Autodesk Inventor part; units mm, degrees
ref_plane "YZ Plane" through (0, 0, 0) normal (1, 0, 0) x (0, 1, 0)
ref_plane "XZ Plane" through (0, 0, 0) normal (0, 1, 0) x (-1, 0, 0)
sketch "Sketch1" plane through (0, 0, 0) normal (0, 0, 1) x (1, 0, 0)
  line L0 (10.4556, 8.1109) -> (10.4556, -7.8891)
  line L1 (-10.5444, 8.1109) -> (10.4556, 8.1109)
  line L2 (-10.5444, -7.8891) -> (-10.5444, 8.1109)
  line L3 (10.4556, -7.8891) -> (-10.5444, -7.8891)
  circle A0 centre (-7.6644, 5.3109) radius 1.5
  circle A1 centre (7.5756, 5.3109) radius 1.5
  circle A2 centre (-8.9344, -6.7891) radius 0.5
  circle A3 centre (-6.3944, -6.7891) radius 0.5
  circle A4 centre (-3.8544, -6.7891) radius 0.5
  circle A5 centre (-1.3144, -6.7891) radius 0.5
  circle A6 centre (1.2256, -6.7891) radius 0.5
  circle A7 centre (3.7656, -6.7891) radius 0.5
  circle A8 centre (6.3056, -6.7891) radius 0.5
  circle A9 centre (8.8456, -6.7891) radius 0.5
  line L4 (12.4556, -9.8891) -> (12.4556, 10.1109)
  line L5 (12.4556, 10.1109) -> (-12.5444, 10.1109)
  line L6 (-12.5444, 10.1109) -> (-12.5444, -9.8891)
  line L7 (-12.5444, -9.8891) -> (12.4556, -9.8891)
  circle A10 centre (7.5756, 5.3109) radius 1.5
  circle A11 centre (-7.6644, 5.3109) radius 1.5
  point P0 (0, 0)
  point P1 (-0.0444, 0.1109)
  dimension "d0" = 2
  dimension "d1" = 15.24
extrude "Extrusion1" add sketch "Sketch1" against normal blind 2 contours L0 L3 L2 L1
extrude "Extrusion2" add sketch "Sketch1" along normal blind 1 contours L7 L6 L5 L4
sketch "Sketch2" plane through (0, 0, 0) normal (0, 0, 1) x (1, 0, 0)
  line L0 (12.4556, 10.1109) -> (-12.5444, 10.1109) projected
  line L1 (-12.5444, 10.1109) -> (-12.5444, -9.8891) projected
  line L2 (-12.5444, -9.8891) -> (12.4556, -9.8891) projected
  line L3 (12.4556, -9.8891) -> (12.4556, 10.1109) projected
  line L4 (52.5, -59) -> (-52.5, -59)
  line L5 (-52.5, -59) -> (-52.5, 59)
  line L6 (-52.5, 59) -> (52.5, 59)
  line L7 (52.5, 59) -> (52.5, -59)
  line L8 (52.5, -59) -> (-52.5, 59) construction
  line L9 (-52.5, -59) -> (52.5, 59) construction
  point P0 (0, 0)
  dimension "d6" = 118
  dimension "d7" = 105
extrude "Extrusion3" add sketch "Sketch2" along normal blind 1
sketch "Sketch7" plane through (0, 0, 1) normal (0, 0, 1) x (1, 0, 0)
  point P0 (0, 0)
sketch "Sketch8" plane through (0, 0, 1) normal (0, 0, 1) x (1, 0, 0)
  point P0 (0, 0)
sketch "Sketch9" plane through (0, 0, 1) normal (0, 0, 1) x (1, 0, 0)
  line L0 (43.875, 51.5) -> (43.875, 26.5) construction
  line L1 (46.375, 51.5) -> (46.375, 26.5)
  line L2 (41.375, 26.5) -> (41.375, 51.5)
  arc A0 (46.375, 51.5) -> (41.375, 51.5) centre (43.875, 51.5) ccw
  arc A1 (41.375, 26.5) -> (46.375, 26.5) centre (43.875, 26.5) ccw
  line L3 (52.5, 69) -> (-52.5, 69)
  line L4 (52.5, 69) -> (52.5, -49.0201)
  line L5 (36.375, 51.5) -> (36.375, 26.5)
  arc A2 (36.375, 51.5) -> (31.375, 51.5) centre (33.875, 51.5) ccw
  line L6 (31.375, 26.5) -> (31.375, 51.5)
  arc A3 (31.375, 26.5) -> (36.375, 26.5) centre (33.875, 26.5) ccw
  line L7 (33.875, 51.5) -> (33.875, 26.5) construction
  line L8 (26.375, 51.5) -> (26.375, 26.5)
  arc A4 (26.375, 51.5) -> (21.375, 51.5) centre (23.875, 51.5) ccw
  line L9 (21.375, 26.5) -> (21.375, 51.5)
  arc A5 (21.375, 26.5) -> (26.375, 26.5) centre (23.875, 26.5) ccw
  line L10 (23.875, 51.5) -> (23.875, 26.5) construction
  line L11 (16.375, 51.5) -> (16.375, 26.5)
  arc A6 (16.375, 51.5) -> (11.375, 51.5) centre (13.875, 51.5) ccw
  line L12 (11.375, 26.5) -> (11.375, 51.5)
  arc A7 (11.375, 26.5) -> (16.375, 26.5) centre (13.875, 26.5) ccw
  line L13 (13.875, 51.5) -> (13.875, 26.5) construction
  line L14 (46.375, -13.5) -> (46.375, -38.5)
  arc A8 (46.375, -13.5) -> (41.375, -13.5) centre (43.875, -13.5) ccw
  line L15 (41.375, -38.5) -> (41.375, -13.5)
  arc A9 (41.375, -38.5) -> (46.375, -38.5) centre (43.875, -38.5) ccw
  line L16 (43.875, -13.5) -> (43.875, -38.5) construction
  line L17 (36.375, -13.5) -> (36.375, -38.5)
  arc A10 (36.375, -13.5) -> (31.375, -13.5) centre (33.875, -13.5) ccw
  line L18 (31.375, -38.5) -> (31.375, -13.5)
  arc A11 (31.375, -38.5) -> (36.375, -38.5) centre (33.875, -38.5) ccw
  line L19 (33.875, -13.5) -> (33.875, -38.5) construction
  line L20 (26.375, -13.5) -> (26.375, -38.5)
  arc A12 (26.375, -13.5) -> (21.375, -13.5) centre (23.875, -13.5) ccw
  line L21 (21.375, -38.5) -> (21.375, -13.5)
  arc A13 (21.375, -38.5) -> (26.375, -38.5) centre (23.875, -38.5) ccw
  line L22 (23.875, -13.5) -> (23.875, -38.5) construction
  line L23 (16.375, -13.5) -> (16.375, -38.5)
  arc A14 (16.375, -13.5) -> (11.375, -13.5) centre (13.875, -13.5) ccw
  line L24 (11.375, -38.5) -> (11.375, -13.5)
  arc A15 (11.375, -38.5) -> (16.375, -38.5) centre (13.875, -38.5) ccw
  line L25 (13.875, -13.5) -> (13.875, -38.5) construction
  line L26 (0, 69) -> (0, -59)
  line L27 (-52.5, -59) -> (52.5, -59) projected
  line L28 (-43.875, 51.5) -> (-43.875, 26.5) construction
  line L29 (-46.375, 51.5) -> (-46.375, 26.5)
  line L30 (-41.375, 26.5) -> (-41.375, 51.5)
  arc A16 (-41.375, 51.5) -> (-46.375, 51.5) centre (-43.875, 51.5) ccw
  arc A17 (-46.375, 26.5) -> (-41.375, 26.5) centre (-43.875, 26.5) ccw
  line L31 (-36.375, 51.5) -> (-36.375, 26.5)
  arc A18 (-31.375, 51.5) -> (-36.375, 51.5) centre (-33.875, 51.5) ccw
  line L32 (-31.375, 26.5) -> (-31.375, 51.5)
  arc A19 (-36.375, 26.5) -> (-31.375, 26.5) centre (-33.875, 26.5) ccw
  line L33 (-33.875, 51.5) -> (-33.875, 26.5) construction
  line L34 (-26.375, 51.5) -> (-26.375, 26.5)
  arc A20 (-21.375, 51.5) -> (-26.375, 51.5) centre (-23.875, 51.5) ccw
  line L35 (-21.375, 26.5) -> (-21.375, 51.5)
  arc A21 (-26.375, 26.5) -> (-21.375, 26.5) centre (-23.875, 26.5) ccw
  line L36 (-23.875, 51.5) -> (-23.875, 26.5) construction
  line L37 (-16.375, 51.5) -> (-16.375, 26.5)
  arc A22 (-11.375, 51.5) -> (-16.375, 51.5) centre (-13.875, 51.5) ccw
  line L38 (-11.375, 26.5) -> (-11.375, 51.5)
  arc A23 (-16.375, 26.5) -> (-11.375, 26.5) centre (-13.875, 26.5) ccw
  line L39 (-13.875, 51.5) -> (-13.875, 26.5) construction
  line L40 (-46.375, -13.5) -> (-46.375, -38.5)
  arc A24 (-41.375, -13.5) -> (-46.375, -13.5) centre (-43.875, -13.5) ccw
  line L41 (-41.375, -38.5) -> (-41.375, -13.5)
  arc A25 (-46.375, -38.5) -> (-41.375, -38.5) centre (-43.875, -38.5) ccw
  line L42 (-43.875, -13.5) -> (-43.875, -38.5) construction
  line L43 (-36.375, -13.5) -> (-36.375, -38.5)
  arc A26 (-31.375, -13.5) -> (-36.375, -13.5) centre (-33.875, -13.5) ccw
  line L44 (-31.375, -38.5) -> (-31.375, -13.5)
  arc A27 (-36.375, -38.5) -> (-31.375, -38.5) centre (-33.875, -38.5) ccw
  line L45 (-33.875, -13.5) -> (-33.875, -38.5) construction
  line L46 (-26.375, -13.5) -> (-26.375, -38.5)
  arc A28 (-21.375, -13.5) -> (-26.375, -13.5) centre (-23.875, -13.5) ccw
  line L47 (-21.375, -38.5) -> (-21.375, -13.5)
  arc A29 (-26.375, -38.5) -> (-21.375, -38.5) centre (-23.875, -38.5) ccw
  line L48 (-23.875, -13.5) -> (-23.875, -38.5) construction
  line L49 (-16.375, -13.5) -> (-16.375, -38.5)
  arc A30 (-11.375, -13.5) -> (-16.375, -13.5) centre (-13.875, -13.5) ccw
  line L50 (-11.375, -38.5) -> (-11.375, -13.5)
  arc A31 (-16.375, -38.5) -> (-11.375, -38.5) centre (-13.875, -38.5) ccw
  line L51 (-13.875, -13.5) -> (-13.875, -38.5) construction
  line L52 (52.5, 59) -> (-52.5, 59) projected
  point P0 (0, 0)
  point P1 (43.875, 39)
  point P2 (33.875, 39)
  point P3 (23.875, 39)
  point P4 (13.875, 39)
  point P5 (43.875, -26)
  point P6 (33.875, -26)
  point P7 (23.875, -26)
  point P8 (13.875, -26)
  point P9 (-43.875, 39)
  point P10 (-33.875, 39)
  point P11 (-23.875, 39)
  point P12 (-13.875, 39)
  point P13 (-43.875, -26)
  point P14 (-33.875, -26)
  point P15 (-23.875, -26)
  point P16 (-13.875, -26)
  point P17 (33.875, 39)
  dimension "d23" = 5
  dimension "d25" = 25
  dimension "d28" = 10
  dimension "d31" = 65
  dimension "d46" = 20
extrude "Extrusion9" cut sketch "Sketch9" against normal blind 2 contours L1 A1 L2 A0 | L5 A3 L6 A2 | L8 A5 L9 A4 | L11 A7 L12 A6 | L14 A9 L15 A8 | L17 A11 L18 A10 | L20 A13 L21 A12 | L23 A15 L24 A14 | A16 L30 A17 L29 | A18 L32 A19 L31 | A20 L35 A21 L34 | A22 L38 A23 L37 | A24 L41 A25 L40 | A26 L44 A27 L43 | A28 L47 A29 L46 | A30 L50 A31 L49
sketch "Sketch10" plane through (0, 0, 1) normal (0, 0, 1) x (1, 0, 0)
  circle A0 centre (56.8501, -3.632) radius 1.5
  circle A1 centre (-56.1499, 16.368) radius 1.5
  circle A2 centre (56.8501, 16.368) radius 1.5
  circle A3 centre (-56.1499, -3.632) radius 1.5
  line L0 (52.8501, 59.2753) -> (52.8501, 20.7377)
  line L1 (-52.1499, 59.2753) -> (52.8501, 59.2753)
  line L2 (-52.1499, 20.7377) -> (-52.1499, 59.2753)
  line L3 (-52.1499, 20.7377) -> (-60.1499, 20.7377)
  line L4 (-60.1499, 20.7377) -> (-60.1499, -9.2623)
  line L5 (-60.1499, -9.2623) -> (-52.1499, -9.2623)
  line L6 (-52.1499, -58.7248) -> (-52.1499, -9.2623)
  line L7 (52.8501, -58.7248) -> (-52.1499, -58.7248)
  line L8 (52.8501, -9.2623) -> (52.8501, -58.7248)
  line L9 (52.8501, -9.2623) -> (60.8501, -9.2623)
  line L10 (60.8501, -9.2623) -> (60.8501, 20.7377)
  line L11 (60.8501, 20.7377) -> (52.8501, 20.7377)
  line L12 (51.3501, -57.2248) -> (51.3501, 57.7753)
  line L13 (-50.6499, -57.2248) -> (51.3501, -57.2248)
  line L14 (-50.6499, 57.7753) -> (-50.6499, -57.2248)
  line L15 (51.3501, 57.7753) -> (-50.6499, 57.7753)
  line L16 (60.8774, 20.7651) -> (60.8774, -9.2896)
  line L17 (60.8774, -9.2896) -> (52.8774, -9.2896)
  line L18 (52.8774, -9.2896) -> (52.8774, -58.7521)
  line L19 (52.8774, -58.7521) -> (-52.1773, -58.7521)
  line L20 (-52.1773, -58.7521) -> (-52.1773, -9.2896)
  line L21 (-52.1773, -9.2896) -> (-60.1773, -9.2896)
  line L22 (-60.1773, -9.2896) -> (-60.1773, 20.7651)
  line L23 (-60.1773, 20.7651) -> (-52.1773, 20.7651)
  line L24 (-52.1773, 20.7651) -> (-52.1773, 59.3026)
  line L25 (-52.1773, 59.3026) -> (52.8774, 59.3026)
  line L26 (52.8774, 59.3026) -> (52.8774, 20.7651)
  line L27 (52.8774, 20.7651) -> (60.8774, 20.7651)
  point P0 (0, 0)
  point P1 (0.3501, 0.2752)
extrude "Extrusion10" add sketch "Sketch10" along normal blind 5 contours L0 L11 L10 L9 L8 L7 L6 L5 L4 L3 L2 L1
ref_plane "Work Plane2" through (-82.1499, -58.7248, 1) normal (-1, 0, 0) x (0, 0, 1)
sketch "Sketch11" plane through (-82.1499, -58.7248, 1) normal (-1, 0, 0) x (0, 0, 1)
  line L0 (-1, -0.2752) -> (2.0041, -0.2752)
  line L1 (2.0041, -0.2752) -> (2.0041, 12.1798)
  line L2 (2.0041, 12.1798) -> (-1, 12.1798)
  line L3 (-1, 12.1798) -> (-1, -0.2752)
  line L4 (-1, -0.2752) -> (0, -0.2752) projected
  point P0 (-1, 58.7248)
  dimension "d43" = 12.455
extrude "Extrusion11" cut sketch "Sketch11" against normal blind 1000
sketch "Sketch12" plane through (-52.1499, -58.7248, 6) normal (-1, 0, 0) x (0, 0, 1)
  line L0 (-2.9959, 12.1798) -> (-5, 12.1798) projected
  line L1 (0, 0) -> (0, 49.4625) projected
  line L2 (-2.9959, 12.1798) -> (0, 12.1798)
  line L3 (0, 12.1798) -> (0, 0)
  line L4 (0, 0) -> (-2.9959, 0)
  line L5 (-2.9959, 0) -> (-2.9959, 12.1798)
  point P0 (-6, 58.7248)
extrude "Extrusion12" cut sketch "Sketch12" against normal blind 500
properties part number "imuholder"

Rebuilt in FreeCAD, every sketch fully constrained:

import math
import FreeCAD as App
import Part
import Sketcher
from FreeCAD import Vector
Q = App.Units.Quantity

doc = App.newDocument("Part")
params = doc.addObject("Spreadsheet::Sheet", "Params")
for row, (alias, value) in enumerate([
    ("sketch1_diameter", "1 mm"),
    ("sketch1_diameter2", "3 mm"),
    ("sketch1_width", "21 mm"),
    ("sketch1_height", "16 mm"),
    ("pad1_length", "2 mm"),
    ("sketch2_width", "25 mm"),
    ("sketch2_height", "20 mm"),
    ("pad2_length", "1 mm"),
    ("sketch3_width", "105 mm"),
    ("sketch3_height", "118 mm"),
    ("sketch3_width2", "25 mm"),
    ("sketch3_height2", "20 mm"),
    ("pad3_length", "1 mm"),
    ("sketch4_radius", "2.5 mm"),
    ("sketch4_height", "25 mm"),
    ("pocket1_length", "2 mm"),
    ("sketch5_diameter", "3 mm"),
    ("sketch5_width", "105 mm"),
    ("sketch5_width2", "8 mm"),
    ("sketch5_width3", "102 mm"),
    ("sketch5_height", "30 mm"),
    ("pad4_length", "5 mm"),
    ("pocket2_length", "1000 mm"),
    ("pocket3_length", "500 mm"),
], start=1):
    params.set(f"A{row}", alias)
    params.set(f"B{row}", "=" + value)
    params.setAlias(f"B{row}", alias)

body = doc.addObject("PartDesign::Body", "Body")
body.AllowCompound = True

sketch1 = doc.addObject("Sketcher::SketchObject", "Sketch")
body.addObject(sketch1)
sketch1.AttachmentSupport = (doc.XY_Plane, [""])
sketch1.MapMode = "FlatFace"
sketch1.addGeometry(Part.LineSegment(Vector(10.5, -7.9, 0), Vector(10.5, 8.1, 0)), False)
sketch1.addGeometry(Part.LineSegment(Vector(10.5, 8.1, 0), Vector(-10.5, 8.1, 0)), False)
sketch1.addGeometry(Part.LineSegment(Vector(-10.5, 8.1, 0), Vector(-10.5, -7.9, 0)), False)
sketch1.addGeometry(Part.LineSegment(Vector(-10.5, -7.9, 0), Vector(10.5, -7.9, 0)), False)
sketch1.addGeometry(Part.Circle(Vector(-8.9, -6.8, 0), Vector(0, 0, 1), 0.5), False)
sketch1.addGeometry(Part.Circle(Vector(-6.4, -6.8, 0), Vector(0, 0, 1), 0.5), False)
sketch1.addGeometry(Part.Circle(Vector(-3.9, -6.8, 0), Vector(0, 0, 1), 0.5), False)
sketch1.addGeometry(Part.Circle(Vector(-1.3, -6.8, 0), Vector(0, 0, 1), 0.5), False)
sketch1.addGeometry(Part.Circle(Vector(1.2, -6.8, 0), Vector(0, 0, 1), 0.5), False)
sketch1.addGeometry(Part.Circle(Vector(3.8, -6.8, 0), Vector(0, 0, 1), 0.5), False)
sketch1.addGeometry(Part.Circle(Vector(6.3, -6.8, 0), Vector(0, 0, 1), 0.5), False)
sketch1.addGeometry(Part.Circle(Vector(8.8, -6.8, 0), Vector(0, 0, 1), 0.5), False)
sketch1.addGeometry(Part.Circle(Vector(-7.7, 5.3, 0), Vector(0, 0, 1), 1.5), False)
sketch1.addGeometry(Part.Circle(Vector(7.6, 5.3, 0), Vector(0, 0, 1), 1.5), False)
sketch1.addConstraint(Sketcher.Constraint("Coincident", 0, 2, 1, 1))
sketch1.addConstraint(Sketcher.Constraint("Coincident", 1, 2, 2, 1))
sketch1.addConstraint(Sketcher.Constraint("Coincident", 2, 2, 3, 1))
sketch1.addConstraint(Sketcher.Constraint("Coincident", 3, 2, 0, 1))
sketch1.addConstraint(Sketcher.Constraint("Vertical", 0))
sketch1.addConstraint(Sketcher.Constraint("Horizontal", 1))
sketch1.addConstraint(Sketcher.Constraint("Vertical", 2))
sketch1.addConstraint(Sketcher.Constraint("Horizontal", 3))
sketch1.addConstraint(Sketcher.Constraint("Equal", 4, 5))
sketch1.addConstraint(Sketcher.Constraint("Equal", 5, 6))
sketch1.addConstraint(Sketcher.Constraint("Equal", 6, 7))
sketch1.addConstraint(Sketcher.Constraint("Equal", 7, 8))
sketch1.addConstraint(Sketcher.Constraint("Equal", 8, 9))
sketch1.addConstraint(Sketcher.Constraint("Equal", 9, 10))
sketch1.addConstraint(Sketcher.Constraint("Equal", 10, 11))
sketch1.addConstraint(Sketcher.Constraint("Equal", 12, 13))
sketch1.addConstraint(Sketcher.Constraint("Horizontal", 4, 3, 5, 3))
sketch1.addConstraint(Sketcher.Constraint("Horizontal", 5, 3, 6, 3))
sketch1.addConstraint(Sketcher.Constraint("Horizontal", 6, 3, 7, 3))
sketch1.addConstraint(Sketcher.Constraint("Horizontal", 7, 3, 8, 3))
sketch1.addConstraint(Sketcher.Constraint("Horizontal", 8, 3, 9, 3))
sketch1.addConstraint(Sketcher.Constraint("Horizontal", 9, 3, 10, 3))
sketch1.addConstraint(Sketcher.Constraint("Horizontal", 10, 3, 11, 3))
sketch1.addConstraint(Sketcher.Constraint("Horizontal", 12, 3, 13, 3))
sketch1.addConstraint(Sketcher.Constraint("Diameter", 4, Q("1 mm")))
sketch1.addConstraint(Sketcher.Constraint("Diameter", 12, Q("3 mm")))
sketch1.addConstraint(Sketcher.Constraint("DistanceX", 1, 2, 1, 1, Q("21 mm")))
sketch1.addConstraint(Sketcher.Constraint("DistanceY", 0, 1, 0, 2, Q("16 mm")))
sketch1.addConstraint(Sketcher.Constraint("DistanceX", 4, 3, 9, 3, Q("12.7 mm")))
sketch1.addConstraint(Sketcher.Constraint("DistanceX", 5, 3, 10, 3, Q("12.7 mm")))
sketch1.addConstraint(Sketcher.Constraint("DistanceX", 6, 3, 11, 3, Q("12.7 mm")))
sketch1.addConstraint(Sketcher.Constraint("DistanceY", 4, 3, 12, 3, Q("12.1 mm")))
sketch1.addConstraint(Sketcher.Constraint("DistanceY", 13, 3, 0, 2, Q("2.8 mm")))
sketch1.addConstraint(Sketcher.Constraint("DistanceX", 4, 3, 5, 3, Q("2.54 mm")))
sketch1.addConstraint(Sketcher.Constraint("DistanceX", 5, 3, 6, 3, Q("2.54 mm")))
sketch1.addConstraint(Sketcher.Constraint("DistanceX", 6, 3, 7, 3, Q("2.54 mm")))
sketch1.addConstraint(Sketcher.Constraint("DistanceX", 7, 3, 8, 3, Q("2.54 mm")))
sketch1.addConstraint(Sketcher.Constraint("DistanceX", 4, 3, 12, 3, Q("1.27 mm")))
sketch1.addConstraint(Sketcher.Constraint("DistanceX", 10, 3, 13, 3, Q("1.27 mm")))
sketch1.addConstraint(Sketcher.Constraint("DistanceX", 13, 3, 0, 2, Q("2.88 mm")))
sketch1.addConstraint(Sketcher.Constraint("DistanceY", 4, 3, -1, 1, Q("6.789 mm")))
sketch1.addConstraint(Sketcher.Constraint("DistanceX", 4, 3, -1, 1, Q("8.9344 mm")))
sketch1.setExpression("Constraints[24]", "Params.sketch1_diameter")
sketch1.setExpression("Constraints[25]", "Params.sketch1_diameter2")
sketch1.setExpression("Constraints[26]", "Params.sketch1_width")
sketch1.setExpression("Constraints[27]", "Params.sketch1_height")
pad1 = doc.addObject("PartDesign::Pad", "Pad")
body.addObject(pad1)
pad1.Profile = sketch1
pad1.setExpression("Length", "Params.pad1_length")
pad1.Reversed = True

sketch2 = doc.addObject("Sketcher::SketchObject", "Sketch001")
body.addObject(sketch2)
sketch2.AttachmentSupport = (doc.XY_Plane, [""])
sketch2.MapMode = "FlatFace"
sketch2.addGeometry(Part.LineSegment(Vector(-13, -10, 0), Vector(12, -10, 0)), False)
sketch2.addGeometry(Part.LineSegment(Vector(12, -10, 0), Vector(12, 10, 0)), False)
sketch2.addGeometry(Part.LineSegment(Vector(12, 10, 0), Vector(-13, 10, 0)), False)
sketch2.addGeometry(Part.LineSegment(Vector(-13, 10, 0), Vector(-13, -10, 0)), False)
sketch2.addGeometry(Part.LineSegment(Vector(-11, 8, 0), Vector(10, 8, 0)), False)
sketch2.addGeometry(Part.LineSegment(Vector(10, 8, 0), Vector(10, -8, 0)), False)
sketch2.addGeometry(Part.LineSegment(Vector(10, -8, 0), Vector(-11, -8, 0)), False)
sketch2.addGeometry(Part.LineSegment(Vector(-11, -8, 0), Vector(-11, 8, 0)), False)
sketch2.addConstraint(Sketcher.Constraint("Coincident", 0, 2, 1, 1))
sketch2.addConstraint(Sketcher.Constraint("Coincident", 1, 2, 2, 1))
sketch2.addConstraint(Sketcher.Constraint("Coincident", 2, 2, 3, 1))
sketch2.addConstraint(Sketcher.Constraint("Coincident", 3, 2, 0, 1))
sketch2.addConstraint(Sketcher.Constraint("Coincident", 4, 2, 5, 1))
sketch2.addConstraint(Sketcher.Constraint("Coincident", 5, 2, 6, 1))
sketch2.addConstraint(Sketcher.Constraint("Coincident", 6, 2, 7, 1))
sketch2.addConstraint(Sketcher.Constraint("Coincident", 7, 2, 4, 1))
sketch2.addConstraint(Sketcher.Constraint("Horizontal", 0))
sketch2.addConstraint(Sketcher.Constraint("Vertical", 1))
sketch2.addConstraint(Sketcher.Constraint("Horizontal", 2))
sketch2.addConstraint(Sketcher.Constraint("Vertical", 3))
sketch2.addConstraint(Sketcher.Constraint("Horizontal", 4))
sketch2.addConstraint(Sketcher.Constraint("Vertical", 5))
sketch2.addConstraint(Sketcher.Constraint("Horizontal", 6))
sketch2.addConstraint(Sketcher.Constraint("Vertical", 7))
sketch2.addConstraint(Sketcher.Constraint("DistanceX", 4, 2, 1, 2, Q("2 mm")))
sketch2.addConstraint(Sketcher.Constraint("DistanceY", 4, 2, 1, 2, Q("2 mm")))
sketch2.addConstraint(Sketcher.Constraint("DistanceY", 0, 2, 5, 2, Q("2 mm")))
sketch2.addConstraint(Sketcher.Constraint("DistanceX", 3, 2, 6, 2, Q("2 mm")))
sketch2.addConstraint(Sketcher.Constraint("DistanceX", 0, 1, 0, 2, Q("25 mm")))
sketch2.addConstraint(Sketcher.Constraint("DistanceY", 1, 1, 1, 2, Q("20 mm")))
sketch2.addConstraint(Sketcher.Constraint("DistanceY", 0, 2, -1, 1, Q("9.889 mm")))
sketch2.addConstraint(Sketcher.Constraint("DistanceX", -1, 1, 0, 2, Q("12.4556 mm")))
sketch2.setExpression("Constraints[20]", "Params.sketch2_width")
sketch2.setExpression("Constraints[21]", "Params.sketch2_height")
pad2 = doc.addObject("PartDesign::Pad", "Pad001")
body.addObject(pad2)
pad2.Profile = sketch2
pad2.setExpression("Length", "Params.pad2_length")

sketch3 = doc.addObject("Sketcher::SketchObject", "Sketch002")
body.addObject(sketch3)
sketch3.AttachmentSupport = (doc.XY_Plane, [""])
sketch3.MapMode = "FlatFace"
sketch3.addGeometry(Part.LineSegment(Vector(-52, -59, 0), Vector(52, -59, 0)), False)
sketch3.addGeometry(Part.LineSegment(Vector(52, -59, 0), Vector(52, 59, 0)), False)
sketch3.addGeometry(Part.LineSegment(Vector(52, 59, 0), Vector(-52, 59, 0)), False)
sketch3.addGeometry(Part.LineSegment(Vector(-52, 59, 0), Vector(-52, -59, 0)), False)
sketch3.addGeometry(Part.LineSegment(Vector(-13, 10, 0), Vector(12, 10, 0)), False)
sketch3.addGeometry(Part.LineSegment(Vector(12, 10, 0), Vector(12, -10, 0)), False)
sketch3.addGeometry(Part.LineSegment(Vector(12, -10, 0), Vector(-13, -10, 0)), False)
sketch3.addGeometry(Part.LineSegment(Vector(-13, -10, 0), Vector(-13, 10, 0)), False)
sketch3.addConstraint(Sketcher.Constraint("Coincident", 0, 2, 1, 1))
sketch3.addConstraint(Sketcher.Constraint("Coincident", 1, 2, 2, 1))
sketch3.addConstraint(Sketcher.Constraint("Coincident", 2, 2, 3, 1))
sketch3.addConstraint(Sketcher.Constraint("Coincident", 3, 2, 0, 1))
sketch3.addConstraint(Sketcher.Constraint("Coincident", 4, 2, 5, 1))
sketch3.addConstraint(Sketcher.Constraint("Coincident", 5, 2, 6, 1))
sketch3.addConstraint(Sketcher.Constraint("Coincident", 6, 2, 7, 1))
sketch3.addConstraint(Sketcher.Constraint("Coincident", 7, 2, 4, 1))
sketch3.addConstraint(Sketcher.Constraint("Horizontal", 0))
sketch3.addConstraint(Sketcher.Constraint("Vertical", 1))
sketch3.addConstraint(Sketcher.Constraint("Horizontal", 2))
sketch3.addConstraint(Sketcher.Constraint("Vertical", 3))
sketch3.addConstraint(Sketcher.Constraint("Horizontal", 4))
sketch3.addConstraint(Sketcher.Constraint("Vertical", 5))
sketch3.addConstraint(Sketcher.Constraint("Horizontal", 6))
sketch3.addConstraint(Sketcher.Constraint("Vertical", 7))
sketch3.addConstraint(Sketcher.Constraint("Symmetric", 0, 2, 2, 2, -1, 1))
sketch3.addConstraint(Sketcher.Constraint("DistanceX", 0, 1, 0, 2, Q("105 mm")))
sketch3.addConstraint(Sketcher.Constraint("DistanceY", 1, 1, 1, 2, Q("118 mm")))
sketch3.addConstraint(Sketcher.Constraint("DistanceX", 4, 1, 4, 2, Q("25 mm")))
sketch3.addConstraint(Sketcher.Constraint("DistanceY", 5, 2, 5, 1, Q("20 mm")))
sketch3.addConstraint(Sketcher.Constraint("DistanceY", -1, 1, 4, 2, Q("10.111 mm")))
sketch3.addConstraint(Sketcher.Constraint("DistanceX", -1, 1, 4, 2, Q("12.4556 mm")))
sketch3.setExpression("Constraints[17]", "Params.sketch3_width")
sketch3.setExpression("Constraints[18]", "Params.sketch3_height")
sketch3.setExpression("Constraints[19]", "Params.sketch3_width2")
sketch3.setExpression("Constraints[20]", "Params.sketch3_height2")
pad3 = doc.addObject("PartDesign::Pad", "Pad002")
body.addObject(pad3)
pad3.Profile = sketch3
pad3.setExpression("Length", "Params.pad3_length")

sketch4 = doc.addObject("Sketcher::SketchObject", "Sketch003")
body.addObject(sketch4)
sketch4.AttachmentSupport = (doc.XY_Plane, [""])
sketch4.MapMode = "FlatFace"
sketch4.AttachmentOffset = App.Placement(Vector(0, 0, 1), App.Rotation())
sketch4.addGeometry(Part.LineSegment(Vector(46.4, 26.5, 0), Vector(46.4, 51.5, 0)), False)
sketch4.addGeometry(Part.ArcOfCircle(Part.Circle(Vector(43.9, 51.5, 0), Vector(0, 0, 1), 2.5), math.radians(0), math.radians(180)), False)
sketch4.addGeometry(Part.LineSegment(Vector(41.4, 51.5, 0), Vector(41.4, 26.5, 0)), False)
sketch4.addGeometry(Part.ArcOfCircle(Part.Circle(Vector(43.9, 26.5, 0), Vector(0, 0, 1), 2.5), math.radians(180), math.radians(360)), False)
sketch4.addGeometry(Part.LineSegment(Vector(36.4, 26.5, 0), Vector(36.4, 51.5, 0)), False)
sketch4.addGeometry(Part.ArcOfCircle(Part.Circle(Vector(33.9, 51.5, 0), Vector(0, 0, 1), 2.5), math.radians(0), math.radians(180)), False)
sketch4.addGeometry(Part.LineSegment(Vector(31.4, 51.5, 0), Vector(31.4, 26.5, 0)), False)
sketch4.addGeometry(Part.ArcOfCircle(Part.Circle(Vector(33.9, 26.5, 0), Vector(0, 0, 1), 2.5), math.radians(180), math.radians(360)), False)
sketch4.addGeometry(Part.LineSegment(Vector(26.4, 26.5, 0), Vector(26.4, 51.5, 0)), False)
sketch4.addGeometry(Part.ArcOfCircle(Part.Circle(Vector(23.9, 51.5, 0), Vector(0, 0, 1), 2.5), math.radians(0), math.radians(180)), False)
sketch4.addGeometry(Part.LineSegment(Vector(21.4, 51.5, 0), Vector(21.4, 26.5, 0)), False)
sketch4.addGeometry(Part.ArcOfCircle(Part.Circle(Vector(23.9, 26.5, 0), Vector(0, 0, 1), 2.5), math.radians(180), math.radians(360)), False)
sketch4.addGeometry(Part.LineSegment(Vector(16.4, 26.5, 0), Vector(16.4, 51.5, 0)), False)
sketch4.addGeometry(Part.ArcOfCircle(Part.Circle(Vector(13.9, 51.5, 0), Vector(0, 0, 1), 2.5), math.radians(0), math.radians(180)), False)
sketch4.addGeometry(Part.LineSegment(Vector(11.4, 51.5, 0), Vector(11.4, 26.5, 0)), False)
sketch4.addGeometry(Part.ArcOfCircle(Part.Circle(Vector(13.9, 26.5, 0), Vector(0, 0, 1), 2.5), math.radians(180), math.radians(360)), False)
sketch4.addGeometry(Part.LineSegment(Vector(46.4, -38.5, 0), Vector(46.4, -13.5, 0)), False)
sketch4.addGeometry(Part.ArcOfCircle(Part.Circle(Vector(43.9, -13.5, 0), Vector(0, 0, 1), 2.5), math.radians(0), math.radians(180)), False)
sketch4.addGeometry(Part.LineSegment(Vector(41.4, -13.5, 0), Vector(41.4, -38.5, 0)), False)
sketch4.addGeometry(Part.ArcOfCircle(Part.Circle(Vector(43.9, -38.5, 0), Vector(0, 0, 1), 2.5), math.radians(180), math.radians(360)), False)
sketch4.addGeometry(Part.LineSegment(Vector(36.4, -38.5, 0), Vector(36.4, -13.5, 0)), False)
sketch4.addGeometry(Part.ArcOfCircle(Part.Circle(Vector(33.9, -13.5, 0), Vector(0, 0, 1), 2.5), math.radians(0), math.radians(180)), False)
sketch4.addGeometry(Part.LineSegment(Vector(31.4, -13.5, 0), Vector(31.4, -38.5, 0)), False)
sketch4.addGeometry(Part.ArcOfCircle(Part.Circle(Vector(33.9, -38.5, 0), Vector(0, 0, 1), 2.5), math.radians(180), math.radians(360)), False)
sketch4.addGeometry(Part.LineSegment(Vector(26.4, -38.5, 0), Vector(26.4, -13.5, 0)), False)
sketch4.addGeometry(Part.ArcOfCircle(Part.Circle(Vector(23.9, -13.5, 0), Vector(0, 0, 1), 2.5), math.radians(0), math.radians(180)), False)
sketch4.addGeometry(Part.LineSegment(Vector(21.4, -13.5, 0), Vector(21.4, -38.5, 0)), False)
sketch4.addGeometry(Part.ArcOfCircle(Part.Circle(Vector(23.9, -38.5, 0), Vector(0, 0, 1), 2.5), math.radians(180), math.radians(360)), False)
sketch4.addGeometry(Part.LineSegment(Vector(16.4, -38.5, 0), Vector(16.4, -13.5, 0)), False)
sketch4.addGeometry(Part.ArcOfCircle(Part.Circle(Vector(13.9, -13.5, 0), Vector(0, 0, 1), 2.5), math.radians(0), math.radians(180)), False)
sketch4.addGeometry(Part.LineSegment(Vector(11.4, -13.5, 0), Vector(11.4, -38.5, 0)), False)
sketch4.addGeometry(Part.ArcOfCircle(Part.Circle(Vector(13.9, -38.5, 0), Vector(0, 0, 1), 2.5), math.radians(180), math.radians(360)), False)
sketch4.addGeometry(Part.ArcOfCircle(Part.Circle(Vector(-43.9, 51.5, 0), Vector(0, 0, 1), 2.5), math.radians(0), math.radians(180)), False)
sketch4.addGeometry(Part.LineSegment(Vector(-46.4, 51.5, 0), Vector(-46.4, 26.5, 0)), False)
sketch4.addGeometry(Part.ArcOfCircle(Part.Circle(Vector(-43.9, 26.5, 0), Vector(0, 0, 1), 2.5), math.radians(180), math.radians(360)), False)
sketch4.addGeometry(Part.LineSegment(Vector(-41.4, 26.5, 0), Vector(-41.4, 51.5, 0)), False)
sketch4.addGeometry(Part.ArcOfCircle(Part.Circle(Vector(-33.9, 51.5, 0), Vector(0, 0, 1), 2.5), math.radians(0), math.radians(180)), False)
sketch4.addGeometry(Part.LineSegment(Vector(-36.4, 51.5, 0), Vector(-36.4, 26.5, 0)), False)
sketch4.addGeometry(Part.ArcOfCircle(Part.Circle(Vector(-33.9, 26.5, 0), Vector(0, 0, 1), 2.5), math.radians(180), math.radians(360)), False)
sketch4.addGeometry(Part.LineSegment(Vector(-31.4, 26.5, 0), Vector(-31.4, 51.5, 0)), False)
sketch4.addGeometry(Part.ArcOfCircle(Part.Circle(Vector(-23.9, 51.5, 0), Vector(0, 0, 1), 2.5), math.radians(0), math.radians(180)), False)
sketch4.addGeometry(Part.LineSegment(Vector(-26.4, 51.5, 0), Vector(-26.4, 26.5, 0)), False)
sketch4.addGeometry(Part.ArcOfCircle(Part.Circle(Vector(-23.9, 26.5, 0), Vector(0, 0, 1), 2.5), math.radians(180), math.radians(360)), False)
sketch4.addGeometry(Part.LineSegment(Vector(-21.4, 26.5, 0), Vector(-21.4, 51.5, 0)), False)
sketch4.addGeometry(Part.ArcOfCircle(Part.Circle(Vector(-13.9, 51.5, 0), Vector(0, 0, 1), 2.5), math.radians(0), math.radians(180)), False)
sketch4.addGeometry(Part.LineSegment(Vector(-16.4, 51.5, 0), Vector(-16.4, 26.5, 0)), False)
sketch4.addGeometry(Part.ArcOfCircle(Part.Circle(Vector(-13.9, 26.5, 0), Vector(0, 0, 1), 2.5), math.radians(180), math.radians(360)), False)
sketch4.addGeometry(Part.LineSegment(Vector(-11.4, 26.5, 0), Vector(-11.4, 51.5, 0)), False)
sketch4.addGeometry(Part.ArcOfCircle(Part.Circle(Vector(-43.9, -13.5, 0), Vector(0, 0, 1), 2.5), math.radians(0), math.radians(180)), False)
sketch4.addGeometry(Part.LineSegment(Vector(-46.4, -13.5, 0), Vector(-46.4, -38.5, 0)), False)
sketch4.addGeometry(Part.ArcOfCircle(Part.Circle(Vector(-43.9, -38.5, 0), Vector(0, 0, 1), 2.5), math.radians(180), math.radians(360)), False)
sketch4.addGeometry(Part.LineSegment(Vector(-41.4, -38.5, 0), Vector(-41.4, -13.5, 0)), False)
sketch4.addGeometry(Part.ArcOfCircle(Part.Circle(Vector(-33.9, -13.5, 0), Vector(0, 0, 1), 2.5), math.radians(0), math.radians(180)), False)
sketch4.addGeometry(Part.LineSegment(Vector(-36.4, -13.5, 0), Vector(-36.4, -38.5, 0)), False)
sketch4.addGeometry(Part.ArcOfCircle(Part.Circle(Vector(-33.9, -38.5, 0), Vector(0, 0, 1), 2.5), math.radians(180), math.radians(360)), False)
sketch4.addGeometry(Part.LineSegment(Vector(-31.4, -38.5, 0), Vector(-31.4, -13.5, 0)), False)
sketch4.addGeometry(Part.ArcOfCircle(Part.Circle(Vector(-23.9, -13.5, 0), Vector(0, 0, 1), 2.5), math.radians(0), math.radians(180)), False)
sketch4.addGeometry(Part.LineSegment(Vector(-26.4, -13.5, 0), Vector(-26.4, -38.5, 0)), False)
sketch4.addGeometry(Part.ArcOfCircle(Part.Circle(Vector(-23.9, -38.5, 0), Vector(0, 0, 1), 2.5), math.radians(180), math.radians(360)), False)
sketch4.addGeometry(Part.LineSegment(Vector(-21.4, -38.5, 0), Vector(-21.4, -13.5, 0)), False)
sketch4.addGeometry(Part.ArcOfCircle(Part.Circle(Vector(-13.9, -13.5, 0), Vector(0, 0, 1), 2.5), math.radians(0), math.radians(180)), False)
sketch4.addGeometry(Part.LineSegment(Vector(-16.4, -13.5, 0), Vector(-16.4, -38.5, 0)), False)
sketch4.addGeometry(Part.ArcOfCircle(Part.Circle(Vector(-13.9, -38.5, 0), Vector(0, 0, 1), 2.5), math.radians(180), math.radians(360)), False)
sketch4.addGeometry(Part.LineSegment(Vector(-11.4, -38.5, 0), Vector(-11.4, -13.5, 0)), False)
sketch4.addConstraint(Sketcher.Constraint("Tangent", 0, 2, 1, 1))
sketch4.addConstraint(Sketcher.Constraint("Tangent", 1, 2, 2, 1))
sketch4.addConstraint(Sketcher.Constraint("Tangent", 2, 2, 3, 1))
sketch4.addConstraint(Sketcher.Constraint("Tangent", 3, 2, 0, 1))
sketch4.addConstraint(Sketcher.Constraint("Tangent", 4, 2, 5, 1))
sketch4.addConstraint(Sketcher.Constraint("Tangent", 5, 2, 6, 1))
sketch4.addConstraint(Sketcher.Constraint("Tangent", 6, 2, 7, 1))
sketch4.addConstraint(Sketcher.Constraint("Tangent", 7, 2, 4, 1))
sketch4.addConstraint(Sketcher.Constraint("Tangent", 8, 2, 9, 1))
sketch4.addConstraint(Sketcher.Constraint("Tangent", 9, 2, 10, 1))
sketch4.addConstraint(Sketcher.Constraint("Tangent", 10, 2, 11, 1))
sketch4.addConstraint(Sketcher.Constraint("Tangent", 11, 2, 8, 1))
sketch4.addConstraint(Sketcher.Constraint("Tangent", 12, 2, 13, 1))
sketch4.addConstraint(Sketcher.Constraint("Tangent", 13, 2, 14, 1))
sketch4.addConstraint(Sketcher.Constraint("Tangent", 14, 2, 15, 1))
sketch4.addConstraint(Sketcher.Constraint("Tangent", 15, 2, 12, 1))
sketch4.addConstraint(Sketcher.Constraint("Tangent", 16, 2, 17, 1))
sketch4.addConstraint(Sketcher.Constraint("Tangent", 17, 2, 18, 1))
sketch4.addConstraint(Sketcher.Constraint("Tangent", 18, 2, 19, 1))
sketch4.addConstraint(Sketcher.Constraint("Tangent", 19, 2, 16, 1))
sketch4.addConstraint(Sketcher.Constraint("Tangent", 20, 2, 21, 1))
sketch4.addConstraint(Sketcher.Constraint("Tangent", 21, 2, 22, 1))
sketch4.addConstraint(Sketcher.Constraint("Tangent", 22, 2, 23, 1))
sketch4.addConstraint(Sketcher.Constraint("Tangent", 23, 2, 20, 1))
sketch4.addConstraint(Sketcher.Constraint("Tangent", 24, 2, 25, 1))
sketch4.addConstraint(Sketcher.Constraint("Tangent", 25, 2, 26, 1))
sketch4.addConstraint(Sketcher.Constraint("Tangent", 26, 2, 27, 1))
sketch4.addConstraint(Sketcher.Constraint("Tangent", 27, 2, 24, 1))
sketch4.addConstraint(Sketcher.Constraint("Tangent", 28, 2, 29, 1))
sketch4.addConstraint(Sketcher.Constraint("Tangent", 29, 2, 30, 1))
sketch4.addConstraint(Sketcher.Constraint("Tangent", 30, 2, 31, 1))
sketch4.addConstraint(Sketcher.Constraint("Tangent", 31, 2, 28, 1))
sketch4.addConstraint(Sketcher.Constraint("Tangent", 32, 2, 33, 1))
sketch4.addConstraint(Sketcher.Constraint("Tangent", 33, 2, 34, 1))
sketch4.addConstraint(Sketcher.Constraint("Tangent", 34, 2, 35, 1))
sketch4.addConstraint(Sketcher.Constraint("Tangent", 35, 2, 32, 1))
sketch4.addConstraint(Sketcher.Constraint("Tangent", 36, 2, 37, 1))
sketch4.addConstraint(Sketcher.Constraint("Tangent", 37, 2, 38, 1))
sketch4.addConstraint(Sketcher.Constraint("Tangent", 38, 2, 39, 1))
sketch4.addConstraint(Sketcher.Constraint("Tangent", 39, 2, 36, 1))
sketch4.addConstraint(Sketcher.Constraint("Tangent", 40, 2, 41, 1))
sketch4.addConstraint(Sketcher.Constraint("Tangent", 41, 2, 42, 1))
sketch4.addConstraint(Sketcher.Constraint("Tangent", 42, 2, 43, 1))
sketch4.addConstraint(Sketcher.Constraint("Tangent", 43, 2, 40, 1))
sketch4.addConstraint(Sketcher.Constraint("Tangent", 44, 2, 45, 1))
sketch4.addConstraint(Sketcher.Constraint("Tangent", 45, 2, 46, 1))
sketch4.addConstraint(Sketcher.Constraint("Tangent", 46, 2, 47, 1))
sketch4.addConstraint(Sketcher.Constraint("Tangent", 47, 2, 44, 1))
sketch4.addConstraint(Sketcher.Constraint("Tangent", 48, 2, 49, 1))
sketch4.addConstraint(Sketcher.Constraint("Tangent", 49, 2, 50, 1))
sketch4.addConstraint(Sketcher.Constraint("Tangent", 50, 2, 51, 1))
sketch4.addConstraint(Sketcher.Constraint("Tangent", 51, 2, 48, 1))
sketch4.addConstraint(Sketcher.Constraint("Tangent", 52, 2, 53, 1))
sketch4.addConstraint(Sketcher.Constraint("Tangent", 53, 2, 54, 1))
sketch4.addConstraint(Sketcher.Constraint("Tangent", 54, 2, 55, 1))
sketch4.addConstraint(Sketcher.Constraint("Tangent", 55, 2, 52, 1))
sketch4.addConstraint(Sketcher.Constraint("Tangent", 56, 2, 57, 1))
sketch4.addConstraint(Sketcher.Constraint("Tangent", 57, 2, 58, 1))
sketch4.addConstraint(Sketcher.Constraint("Tangent", 58, 2, 59, 1))
sketch4.addConstraint(Sketcher.Constraint("Tangent", 59, 2, 56, 1))
sketch4.addConstraint(Sketcher.Constraint("Tangent", 60, 2, 61, 1))
sketch4.addConstraint(Sketcher.Constraint("Tangent", 61, 2, 62, 1))
sketch4.addConstraint(Sketcher.Constraint("Tangent", 62, 2, 63, 1))
sketch4.addConstraint(Sketcher.Constraint("Tangent", 63, 2, 60, 1))
sketch4.addConstraint(Sketcher.Constraint("Vertical", 0))
sketch4.addConstraint(Sketcher.Constraint("Vertical", 2))
sketch4.addConstraint(Sketcher.Constraint("Vertical", 4))
sketch4.addConstraint(Sketcher.Constraint("Vertical", 6))
sketch4.addConstraint(Sketcher.Constraint("Vertical", 8))
sketch4.addConstraint(Sketcher.Constraint("Vertical", 10))
sketch4.addConstraint(Sketcher.Constraint("Vertical", 12))
sketch4.addConstraint(Sketcher.Constraint("Vertical", 14))
sketch4.addConstraint(Sketcher.Constraint("Vertical", 16))
sketch4.addConstraint(Sketcher.Constraint("Vertical", 18))
sketch4.addConstraint(Sketcher.Constraint("Vertical", 20))
sketch4.addConstraint(Sketcher.Constraint("Vertical", 22))
sketch4.addConstraint(Sketcher.Constraint("Vertical", 24))
sketch4.addConstraint(Sketcher.Constraint("Vertical", 26))
sketch4.addConstraint(Sketcher.Constraint("Vertical", 28))
sketch4.addConstraint(Sketcher.Constraint("Vertical", 30))
sketch4.addConstraint(Sketcher.Constraint("Vertical", 33))
sketch4.addConstraint(Sketcher.Constraint("Vertical", 35))
sketch4.addConstraint(Sketcher.Constraint("Vertical", 37))
sketch4.addConstraint(Sketcher.Constraint("Vertical", 39))
sketch4.addConstraint(Sketcher.Constraint("Vertical", 41))
sketch4.addConstraint(Sketcher.Constraint("Vertical", 43))
sketch4.addConstraint(Sketcher.Constraint("Vertical", 45))
sketch4.addConstraint(Sketcher.Constraint("Vertical", 47))
sketch4.addConstraint(Sketcher.Constraint("Vertical", 49))
sketch4.addConstraint(Sketcher.Constraint("Vertical", 51))
sketch4.addConstraint(Sketcher.Constraint("Vertical", 53))
sketch4.addConstraint(Sketcher.Constraint("Vertical", 55))
sketch4.addConstraint(Sketcher.Constraint("Vertical", 57))
sketch4.addConstraint(Sketcher.Constraint("Vertical", 59))
sketch4.addConstraint(Sketcher.Constraint("Vertical", 61))
sketch4.addConstraint(Sketcher.Constraint("Vertical", 63))
sketch4.addConstraint(Sketcher.Constraint("Equal", 3, 5))
sketch4.addConstraint(Sketcher.Constraint("Equal", 7, 9))
sketch4.addConstraint(Sketcher.Constraint("Equal", 11, 13))
sketch4.addConstraint(Sketcher.Constraint("Equal", 15, 17))
sketch4.addConstraint(Sketcher.Constraint("Equal", 19, 21))
sketch4.addConstraint(Sketcher.Constraint("Equal", 23, 25))
sketch4.addConstraint(Sketcher.Constraint("Equal", 27, 29))
sketch4.addConstraint(Sketcher.Constraint("Equal", 31, 32))
sketch4.addConstraint(Sketcher.Constraint("Equal", 34, 36))
sketch4.addConstraint(Sketcher.Constraint("Equal", 38, 40))
sketch4.addConstraint(Sketcher.Constraint("Equal", 42, 44))
sketch4.addConstraint(Sketcher.Constraint("Equal", 46, 48))
sketch4.addConstraint(Sketcher.Constraint("Equal", 50, 52))
sketch4.addConstraint(Sketcher.Constraint("Equal", 54, 56))
sketch4.addConstraint(Sketcher.Constraint("Equal", 58, 60))
sketch4.addConstraint(Sketcher.Constraint("Symmetric", 1, 3, 32, 3, -2))
sketch4.addConstraint(Sketcher.Constraint("Symmetric", 5, 3, 36, 3, -2))
sketch4.addConstraint(Sketcher.Constraint("Symmetric", 9, 3, 40, 3, -2))
sketch4.addConstraint(Sketcher.Constraint("Symmetric", 13, 3, 44, 3, -2))
sketch4.addConstraint(Sketcher.Constraint("Symmetric", 17, 3, 48, 3, -2))
sketch4.addConstraint(Sketcher.Constraint("Symmetric", 21, 3, 52, 3, -2))
sketch4.addConstraint(Sketcher.Constraint("Symmetric", 25, 3, 56, 3, -2))
sketch4.addConstraint(Sketcher.Constraint("Symmetric", 29, 3, 60, 3, -2))
sketch4.addConstraint(Sketcher.Constraint("Horizontal", 1, 3, 5, 3))
sketch4.addConstraint(Sketcher.Constraint("Horizontal", 3, 3, 7, 3))
sketch4.addConstraint(Sketcher.Constraint("Horizontal", 5, 3, 9, 3))
sketch4.addConstraint(Sketcher.Constraint("Horizontal", 7, 3, 11, 3))
sketch4.addConstraint(Sketcher.Constraint("Horizontal", 9, 3, 13, 3))
sketch4.addConstraint(Sketcher.Constraint("Horizontal", 11, 3, 15, 3))
sketch4.addConstraint(Sketcher.Constraint("Horizontal", 17, 3, 21, 3))
sketch4.addConstraint(Sketcher.Constraint("Horizontal", 19, 3, 23, 3))
sketch4.addConstraint(Sketcher.Constraint("Horizontal", 21, 3, 25, 3))
sketch4.addConstraint(Sketcher.Constraint("Horizontal", 23, 3, 27, 3))
sketch4.addConstraint(Sketcher.Constraint("Horizontal", 25, 3, 29, 3))
sketch4.addConstraint(Sketcher.Constraint("Horizontal", 27, 3, 31, 3))
sketch4.addConstraint(Sketcher.Constraint("Horizontal", 15, 3, 34, 3))
sketch4.addConstraint(Sketcher.Constraint("Horizontal", 34, 3, 38, 3))
sketch4.addConstraint(Sketcher.Constraint("Horizontal", 38, 3, 42, 3))
sketch4.addConstraint(Sketcher.Constraint("Horizontal", 42, 3, 46, 3))
sketch4.addConstraint(Sketcher.Constraint("Horizontal", 31, 3, 50, 3))
sketch4.addConstraint(Sketcher.Constraint("Horizontal", 50, 3, 54, 3))
sketch4.addConstraint(Sketcher.Constraint("Horizontal", 54, 3, 58, 3))
sketch4.addConstraint(Sketcher.Constraint("Horizontal", 58, 3, 62, 3))
sketch4.addConstraint(Sketcher.Constraint("Vertical", 3, 3, 17, 3))
sketch4.addConstraint(Sketcher.Constraint("Vertical", 7, 3, 21, 3))
sketch4.addConstraint(Sketcher.Constraint("Vertical", 11, 3, 25, 3))
sketch4.addConstraint(Sketcher.Constraint("Vertical", 15, 3, 29, 3))
sketch4.addConstraint(Sketcher.Constraint("Equal", 14, 16))
sketch4.addConstraint(Sketcher.Constraint("Radius", 1, Q("2.5 mm")))
sketch4.addConstraint(Sketcher.Constraint("DistanceY", 0, 1, 0, 2, Q("25 mm")))
sketch4.addConstraint(Sketcher.Constraint("DistanceY", -1, 1, 1, 3, Q("51.5 mm")))
sketch4.addConstraint(Sketcher.Constraint("DistanceY", 17, 3, -1, 1, Q("13.5 mm")))
sketch4.addConstraint(Sketcher.Constraint("DistanceX", -1, 1, 1, 3, Q("43.875 mm")))
sketch4.addConstraint(Sketcher.Constraint("DistanceX", -1, 1, 5, 3, Q("33.875 mm")))
sketch4.addConstraint(Sketcher.Constraint("DistanceX", -1, 1, 9, 3, Q("23.875 mm")))
sketch4.addConstraint(Sketcher.Constraint("DistanceX", -1, 1, 13, 3, Q("13.875 mm")))
sketch4.setExpression("Constraints[144]", "Params.sketch4_radius")
sketch4.setExpression("Constraints[145]", "Params.sketch4_height")
pocket1 = doc.addObject("PartDesign::Pocket", "Pocket")
body.addObject(pocket1)
pocket1.Profile = sketch4
pocket1.setExpression("Length", "Params.pocket1_length")

sketch5 = doc.addObject("Sketcher::SketchObject", "Sketch004")
body.addObject(sketch5)
sketch5.AttachmentSupport = (doc.XY_Plane, [""])
sketch5.MapMode = "FlatFace"
sketch5.AttachmentOffset = App.Placement(Vector(0, 0, 1), App.Rotation())
sketch5.addGeometry(Part.LineSegment(Vector(52.9, 20.7, 0), Vector(52.9, 59.3, 0)), False)
sketch5.addGeometry(Part.LineSegment(Vector(52.9, 59.3, 0), Vector(-52.1, 59.3, 0)), False)
sketch5.addGeometry(Part.LineSegment(Vector(-52.1, 59.3, 0), Vector(-52.1, 20.7, 0)), False)
sketch5.addGeometry(Part.LineSegment(Vector(-52.1, 20.7, 0), Vector(-60.1, 20.7, 0)), False)
sketch5.addGeometry(Part.LineSegment(Vector(-60.1, 20.7, 0), Vector(-60.1, -9.3, 0)), False)
sketch5.addGeometry(Part.LineSegment(Vector(-60.1, -9.3, 0), Vector(-52.1, -9.3, 0)), False)
sketch5.addGeometry(Part.LineSegment(Vector(-52.1, -9.3, 0), Vector(-52.1, -58.7, 0)), False)
sketch5.addGeometry(Part.LineSegment(Vector(-52.1, -58.7, 0), Vector(52.9, -58.7, 0)), False)
sketch5.addGeometry(Part.LineSegment(Vector(52.9, -58.7, 0), Vector(52.9, -9.3, 0)), False)
sketch5.addGeometry(Part.LineSegment(Vector(52.9, -9.3, 0), Vector(60.9, -9.3, 0)), False)
sketch5.addGeometry(Part.LineSegment(Vector(60.9, -9.3, 0), Vector(60.9, 20.7, 0)), False)
sketch5.addGeometry(Part.LineSegment(Vector(60.9, 20.7, 0), Vector(52.9, 20.7, 0)), False)
sketch5.addGeometry(Part.Circle(Vector(-56.1, -3.6, 0), Vector(0, 0, 1), 1.5), False)
sketch5.addGeometry(Part.Circle(Vector(56.9, -3.6, 0), Vector(0, 0, 1), 1.5), False)
sketch5.addGeometry(Part.Circle(Vector(-56.1, 16.4, 0), Vector(0, 0, 1), 1.5), False)
sketch5.addGeometry(Part.LineSegment(Vector(51.4, 57.8, 0), Vector(51.4, -57.2, 0)), False)
sketch5.addGeometry(Part.LineSegment(Vector(51.4, -57.2, 0), Vector(-50.6, -57.2, 0)), False)
sketch5.addGeometry(Part.LineSegment(Vector(-50.6, -57.2, 0), Vector(-50.6, 57.8, 0)), False)
sketch5.addGeometry(Part.LineSegment(Vector(-50.6, 57.8, 0), Vector(51.4, 57.8, 0)), False)
sketch5.addGeometry(Part.Circle(Vector(56.9, 16.4, 0), Vector(0, 0, 1), 1.5), False)
sketch5.addConstraint(Sketcher.Constraint("Coincident", 0, 2, 1, 1))
sketch5.addConstraint(Sketcher.Constraint("Coincident", 1, 2, 2, 1))
sketch5.addConstraint(Sketcher.Constraint("Coincident", 2, 2, 3, 1))
sketch5.addConstraint(Sketcher.Constraint("Coincident", 3, 2, 4, 1))
sketch5.addConstraint(Sketcher.Constraint("Coincident", 4, 2, 5, 1))
sketch5.addConstraint(Sketcher.Constraint("Coincident", 5, 2, 6, 1))
sketch5.addConstraint(Sketcher.Constraint("Coincident", 6, 2, 7, 1))
sketch5.addConstraint(Sketcher.Constraint("Coincident", 7, 2, 8, 1))
sketch5.addConstraint(Sketcher.Constraint("Coincident", 8, 2, 9, 1))
sketch5.addConstraint(Sketcher.Constraint("Coincident", 9, 2, 10, 1))
sketch5.addConstraint(Sketcher.Constraint("Coincident", 10, 2, 11, 1))
sketch5.addConstraint(Sketcher.Constraint("Coincident", 11, 2, 0, 1))
sketch5.addConstraint(Sketcher.Constraint("Coincident", 15, 2, 16, 1))
sketch5.addConstraint(Sketcher.Constraint("Coincident", 16, 2, 17, 1))
sketch5.addConstraint(Sketcher.Constraint("Coincident", 17, 2, 18, 1))
sketch5.addConstraint(Sketcher.Constraint("Coincident", 18, 2, 15, 1))
sketch5.addConstraint(Sketcher.Constraint("Vertical", 0))
sketch5.addConstraint(Sketcher.Constraint("Horizontal", 1))
sketch5.addConstraint(Sketcher.Constraint("Vertical", 2))
sketch5.addConstraint(Sketcher.Constraint("Horizontal", 3))
sketch5.addConstraint(Sketcher.Constraint("Vertical", 4))
sketch5.addConstraint(Sketcher.Constraint("Horizontal", 5))
sketch5.addConstraint(Sketcher.Constraint("Vertical", 6))
sketch5.addConstraint(Sketcher.Constraint("Horizontal", 7))
sketch5.addConstraint(Sketcher.Constraint("Vertical", 8))
sketch5.addConstraint(Sketcher.Constraint("Horizontal", 9))
sketch5.addConstraint(Sketcher.Constraint("Vertical", 10))
sketch5.addConstraint(Sketcher.Constraint("Horizontal", 11))
sketch5.addConstraint(Sketcher.Constraint("Vertical", 15))
sketch5.addConstraint(Sketcher.Constraint("Horizontal", 16))
sketch5.addConstraint(Sketcher.Constraint("Vertical", 17))
sketch5.addConstraint(Sketcher.Constraint("Horizontal", 18))
sketch5.addConstraint(Sketcher.Constraint("Equal", 12, 13))
sketch5.addConstraint(Sketcher.Constraint("Equal", 13, 14))
sketch5.addConstraint(Sketcher.Constraint("Equal", 14, 19))
sketch5.addConstraint(Sketcher.Constraint("Horizontal", 12, 3, 13, 3))
sketch5.addConstraint(Sketcher.Constraint("Horizontal", 14, 3, 19, 3))
sketch5.addConstraint(Sketcher.Constraint("Horizontal", 5, 2, 8, 2))
sketch5.addConstraint(Sketcher.Constraint("Horizontal", 3, 2, 10, 2))
sketch5.addConstraint(Sketcher.Constraint("Vertical", 12, 3, 14, 3))
sketch5.addConstraint(Sketcher.Constraint("Vertical", 13, 3, 19, 3))
sketch5.addConstraint(Sketcher.Constraint("Vertical", 2, 2, 5, 2))
sketch5.addConstraint(Sketcher.Constraint("Vertical", 0, 2, 7, 2))
sketch5.addConstraint(Sketcher.Constraint("Equal", 5, 9))
sketch5.addConstraint(Sketcher.Constraint("Diameter", 12, Q("3 mm")))
sketch5.addConstraint(Sketcher.Constraint("DistanceX", 1, 2, 1, 1, Q("105 mm")))
sketch5.addConstraint(Sketcher.Constraint("DistanceX", 3, 2, 3, 1, Q("8 mm")))
sketch5.addConstraint(Sketcher.Constraint("DistanceX", 16, 2, 16, 1, Q("102 mm")))
sketch5.addConstraint(Sketcher.Constraint("DistanceY", 4, 2, 4, 1, Q("30 mm")))
sketch5.addConstraint(Sketcher.Constraint("DistanceY", 15, 2, 15, 1, Q("115 mm")))
sketch5.addConstraint(Sketcher.Constraint("DistanceX", 12, 3, 13, 3, Q("113 mm")))
sketch5.addConstraint(Sketcher.Constraint("DistanceY", 12, 3, 14, 3, Q("20 mm")))
sketch5.addConstraint(Sketcher.Constraint("DistanceX", 0, 2, 19, 3, Q("4 mm")))
sketch5.addConstraint(Sketcher.Constraint("DistanceY", 7, 2, 0, 2, Q("118 mm")))
sketch5.addConstraint(Sketcher.Constraint("DistanceX", 15, 2, 7, 2, Q("1.5 mm")))
sketch5.addConstraint(Sketcher.Constraint("DistanceY", 7, 2, 15, 2, Q("1.5 mm")))
sketch5.addConstraint(Sketcher.Constraint("DistanceX", 12, 3, -1, 1, Q("56.15 mm")))
sketch5.addConstraint(Sketcher.Constraint("DistanceY", 0, 1, 0, 2, Q("38.5376 mm")))
sketch5.addConstraint(Sketcher.Constraint("DistanceY", 12, 3, -1, 1, Q("3.632 mm")))
sketch5.addConstraint(Sketcher.Constraint("DistanceY", -1, 1, 0, 2, Q("59.2753 mm")))
sketch5.setExpression("Constraints[44]", "Params.sketch5_diameter")
sketch5.setExpression("Constraints[45]", "Params.sketch5_width")
sketch5.setExpression("Constraints[46]", "Params.sketch5_width2")
sketch5.setExpression("Constraints[47]", "Params.sketch5_width3")
sketch5.setExpression("Constraints[48]", "Params.sketch5_height")
pad4 = doc.addObject("PartDesign::Pad", "Pad003")
body.addObject(pad4)
pad4.Profile = sketch5
pad4.setExpression("Length", "Params.pad4_length")

sketch6 = doc.addObject("Sketcher::SketchObject", "Sketch005")
body.addObject(sketch6)
sketch6.AttachmentSupport = (doc.YZ_Plane, [""])
sketch6.MapMode = "FlatFace"
sketch6.AttachmentOffset = App.Placement(Vector(0, 0, -82.1499), App.Rotation())
sketch6.addGeometry(Part.LineSegment(Vector(-46.5, 0, 0), Vector(-59, 0, 0)), False)
sketch6.addGeometry(Part.LineSegment(Vector(-59, 0, 0), Vector(-59, 3, 0)), False)
sketch6.addGeometry(Part.LineSegment(Vector(-59, 3, 0), Vector(-46.5, 3, 0)), False)
sketch6.addGeometry(Part.LineSegment(Vector(-46.5, 3, 0), Vector(-46.5, 0, 0)), False)
sketch6.addConstraint(Sketcher.Constraint("Coincident", 0, 2, 1, 1))
sketch6.addConstraint(Sketcher.Constraint("Coincident", 1, 2, 2, 1))
sketch6.addConstraint(Sketcher.Constraint("Coincident", 2, 2, 3, 1))
sketch6.addConstraint(Sketcher.Constraint("Coincident", 3, 2, 0, 1))
sketch6.addConstraint(Sketcher.Constraint("Horizontal", 0))
sketch6.addConstraint(Sketcher.Constraint("Vertical", 1))
sketch6.addConstraint(Sketcher.Constraint("Horizontal", 2))
sketch6.addConstraint(Sketcher.Constraint("Vertical", 3))
sketch6.addConstraint(Sketcher.Constraint("PointOnObject", 0, 2, -1))
sketch6.addConstraint(Sketcher.Constraint("DistanceX", 0, 2, 0, 1, Q("12.455 mm")))
sketch6.addConstraint(Sketcher.Constraint("DistanceX", 0, 2, -1, 1, Q("59 mm")))
sketch6.addConstraint(Sketcher.Constraint("DistanceY", 1, 1, 1, 2, Q("3.004 mm")))
pocket2 = doc.addObject("PartDesign::Pocket", "Pocket001")
body.addObject(pocket2)
pocket2.Profile = sketch6
pocket2.setExpression("Length", "Params.pocket2_length")
pocket2.Reversed = True

sketch7 = doc.addObject("Sketcher::SketchObject", "Sketch006")
body.addObject(sketch7)
sketch7.AttachmentSupport = (doc.YZ_Plane, [""])
sketch7.MapMode = "FlatFace"
sketch7.AttachmentOffset = App.Placement(Vector(0, 0, -52.1499), App.Rotation())
sketch7.addGeometry(Part.LineSegment(Vector(-58.7, 3, 0), Vector(-58.7, 6, 0)), False)
sketch7.addGeometry(Part.LineSegment(Vector(-58.7, 6, 0), Vector(-46.5, 6, 0)), False)
sketch7.addGeometry(Part.LineSegment(Vector(-46.5, 6, 0), Vector(-46.5, 3, 0)), False)
sketch7.addGeometry(Part.LineSegment(Vector(-46.5, 3, 0), Vector(-58.7, 3, 0)), False)
sketch7.addConstraint(Sketcher.Constraint("Coincident", 0, 2, 1, 1))
sketch7.addConstraint(Sketcher.Constraint("Coincident", 1, 2, 2, 1))
sketch7.addConstraint(Sketcher.Constraint("Coincident", 2, 2, 3, 1))
sketch7.addConstraint(Sketcher.Constraint("Coincident", 3, 2, 0, 1))
sketch7.addConstraint(Sketcher.Constraint("Vertical", 0))
sketch7.addConstraint(Sketcher.Constraint("Horizontal", 1))
sketch7.addConstraint(Sketcher.Constraint("Vertical", 2))
sketch7.addConstraint(Sketcher.Constraint("Horizontal", 3))
sketch7.addConstraint(Sketcher.Constraint("DistanceY", -1, 1, 0, 2, Q("6 mm")))
sketch7.addConstraint(Sketcher.Constraint("DistanceY", 0, 1, 0, 2, Q("2.996 mm")))
sketch7.addConstraint(Sketcher.Constraint("DistanceX", 1, 1, 1, 2, Q("12.1798 mm")))
sketch7.addConstraint(Sketcher.Constraint("DistanceX", 1, 2, -1, 1, Q("46.545 mm")))
pocket3 = doc.addObject("PartDesign::Pocket", "Pocket002")
body.addObject(pocket3)
pocket3.Profile = sketch7
pocket3.setExpression("Length", "Params.pocket3_length")
pocket3.Reversed = True

doc.recompute()
